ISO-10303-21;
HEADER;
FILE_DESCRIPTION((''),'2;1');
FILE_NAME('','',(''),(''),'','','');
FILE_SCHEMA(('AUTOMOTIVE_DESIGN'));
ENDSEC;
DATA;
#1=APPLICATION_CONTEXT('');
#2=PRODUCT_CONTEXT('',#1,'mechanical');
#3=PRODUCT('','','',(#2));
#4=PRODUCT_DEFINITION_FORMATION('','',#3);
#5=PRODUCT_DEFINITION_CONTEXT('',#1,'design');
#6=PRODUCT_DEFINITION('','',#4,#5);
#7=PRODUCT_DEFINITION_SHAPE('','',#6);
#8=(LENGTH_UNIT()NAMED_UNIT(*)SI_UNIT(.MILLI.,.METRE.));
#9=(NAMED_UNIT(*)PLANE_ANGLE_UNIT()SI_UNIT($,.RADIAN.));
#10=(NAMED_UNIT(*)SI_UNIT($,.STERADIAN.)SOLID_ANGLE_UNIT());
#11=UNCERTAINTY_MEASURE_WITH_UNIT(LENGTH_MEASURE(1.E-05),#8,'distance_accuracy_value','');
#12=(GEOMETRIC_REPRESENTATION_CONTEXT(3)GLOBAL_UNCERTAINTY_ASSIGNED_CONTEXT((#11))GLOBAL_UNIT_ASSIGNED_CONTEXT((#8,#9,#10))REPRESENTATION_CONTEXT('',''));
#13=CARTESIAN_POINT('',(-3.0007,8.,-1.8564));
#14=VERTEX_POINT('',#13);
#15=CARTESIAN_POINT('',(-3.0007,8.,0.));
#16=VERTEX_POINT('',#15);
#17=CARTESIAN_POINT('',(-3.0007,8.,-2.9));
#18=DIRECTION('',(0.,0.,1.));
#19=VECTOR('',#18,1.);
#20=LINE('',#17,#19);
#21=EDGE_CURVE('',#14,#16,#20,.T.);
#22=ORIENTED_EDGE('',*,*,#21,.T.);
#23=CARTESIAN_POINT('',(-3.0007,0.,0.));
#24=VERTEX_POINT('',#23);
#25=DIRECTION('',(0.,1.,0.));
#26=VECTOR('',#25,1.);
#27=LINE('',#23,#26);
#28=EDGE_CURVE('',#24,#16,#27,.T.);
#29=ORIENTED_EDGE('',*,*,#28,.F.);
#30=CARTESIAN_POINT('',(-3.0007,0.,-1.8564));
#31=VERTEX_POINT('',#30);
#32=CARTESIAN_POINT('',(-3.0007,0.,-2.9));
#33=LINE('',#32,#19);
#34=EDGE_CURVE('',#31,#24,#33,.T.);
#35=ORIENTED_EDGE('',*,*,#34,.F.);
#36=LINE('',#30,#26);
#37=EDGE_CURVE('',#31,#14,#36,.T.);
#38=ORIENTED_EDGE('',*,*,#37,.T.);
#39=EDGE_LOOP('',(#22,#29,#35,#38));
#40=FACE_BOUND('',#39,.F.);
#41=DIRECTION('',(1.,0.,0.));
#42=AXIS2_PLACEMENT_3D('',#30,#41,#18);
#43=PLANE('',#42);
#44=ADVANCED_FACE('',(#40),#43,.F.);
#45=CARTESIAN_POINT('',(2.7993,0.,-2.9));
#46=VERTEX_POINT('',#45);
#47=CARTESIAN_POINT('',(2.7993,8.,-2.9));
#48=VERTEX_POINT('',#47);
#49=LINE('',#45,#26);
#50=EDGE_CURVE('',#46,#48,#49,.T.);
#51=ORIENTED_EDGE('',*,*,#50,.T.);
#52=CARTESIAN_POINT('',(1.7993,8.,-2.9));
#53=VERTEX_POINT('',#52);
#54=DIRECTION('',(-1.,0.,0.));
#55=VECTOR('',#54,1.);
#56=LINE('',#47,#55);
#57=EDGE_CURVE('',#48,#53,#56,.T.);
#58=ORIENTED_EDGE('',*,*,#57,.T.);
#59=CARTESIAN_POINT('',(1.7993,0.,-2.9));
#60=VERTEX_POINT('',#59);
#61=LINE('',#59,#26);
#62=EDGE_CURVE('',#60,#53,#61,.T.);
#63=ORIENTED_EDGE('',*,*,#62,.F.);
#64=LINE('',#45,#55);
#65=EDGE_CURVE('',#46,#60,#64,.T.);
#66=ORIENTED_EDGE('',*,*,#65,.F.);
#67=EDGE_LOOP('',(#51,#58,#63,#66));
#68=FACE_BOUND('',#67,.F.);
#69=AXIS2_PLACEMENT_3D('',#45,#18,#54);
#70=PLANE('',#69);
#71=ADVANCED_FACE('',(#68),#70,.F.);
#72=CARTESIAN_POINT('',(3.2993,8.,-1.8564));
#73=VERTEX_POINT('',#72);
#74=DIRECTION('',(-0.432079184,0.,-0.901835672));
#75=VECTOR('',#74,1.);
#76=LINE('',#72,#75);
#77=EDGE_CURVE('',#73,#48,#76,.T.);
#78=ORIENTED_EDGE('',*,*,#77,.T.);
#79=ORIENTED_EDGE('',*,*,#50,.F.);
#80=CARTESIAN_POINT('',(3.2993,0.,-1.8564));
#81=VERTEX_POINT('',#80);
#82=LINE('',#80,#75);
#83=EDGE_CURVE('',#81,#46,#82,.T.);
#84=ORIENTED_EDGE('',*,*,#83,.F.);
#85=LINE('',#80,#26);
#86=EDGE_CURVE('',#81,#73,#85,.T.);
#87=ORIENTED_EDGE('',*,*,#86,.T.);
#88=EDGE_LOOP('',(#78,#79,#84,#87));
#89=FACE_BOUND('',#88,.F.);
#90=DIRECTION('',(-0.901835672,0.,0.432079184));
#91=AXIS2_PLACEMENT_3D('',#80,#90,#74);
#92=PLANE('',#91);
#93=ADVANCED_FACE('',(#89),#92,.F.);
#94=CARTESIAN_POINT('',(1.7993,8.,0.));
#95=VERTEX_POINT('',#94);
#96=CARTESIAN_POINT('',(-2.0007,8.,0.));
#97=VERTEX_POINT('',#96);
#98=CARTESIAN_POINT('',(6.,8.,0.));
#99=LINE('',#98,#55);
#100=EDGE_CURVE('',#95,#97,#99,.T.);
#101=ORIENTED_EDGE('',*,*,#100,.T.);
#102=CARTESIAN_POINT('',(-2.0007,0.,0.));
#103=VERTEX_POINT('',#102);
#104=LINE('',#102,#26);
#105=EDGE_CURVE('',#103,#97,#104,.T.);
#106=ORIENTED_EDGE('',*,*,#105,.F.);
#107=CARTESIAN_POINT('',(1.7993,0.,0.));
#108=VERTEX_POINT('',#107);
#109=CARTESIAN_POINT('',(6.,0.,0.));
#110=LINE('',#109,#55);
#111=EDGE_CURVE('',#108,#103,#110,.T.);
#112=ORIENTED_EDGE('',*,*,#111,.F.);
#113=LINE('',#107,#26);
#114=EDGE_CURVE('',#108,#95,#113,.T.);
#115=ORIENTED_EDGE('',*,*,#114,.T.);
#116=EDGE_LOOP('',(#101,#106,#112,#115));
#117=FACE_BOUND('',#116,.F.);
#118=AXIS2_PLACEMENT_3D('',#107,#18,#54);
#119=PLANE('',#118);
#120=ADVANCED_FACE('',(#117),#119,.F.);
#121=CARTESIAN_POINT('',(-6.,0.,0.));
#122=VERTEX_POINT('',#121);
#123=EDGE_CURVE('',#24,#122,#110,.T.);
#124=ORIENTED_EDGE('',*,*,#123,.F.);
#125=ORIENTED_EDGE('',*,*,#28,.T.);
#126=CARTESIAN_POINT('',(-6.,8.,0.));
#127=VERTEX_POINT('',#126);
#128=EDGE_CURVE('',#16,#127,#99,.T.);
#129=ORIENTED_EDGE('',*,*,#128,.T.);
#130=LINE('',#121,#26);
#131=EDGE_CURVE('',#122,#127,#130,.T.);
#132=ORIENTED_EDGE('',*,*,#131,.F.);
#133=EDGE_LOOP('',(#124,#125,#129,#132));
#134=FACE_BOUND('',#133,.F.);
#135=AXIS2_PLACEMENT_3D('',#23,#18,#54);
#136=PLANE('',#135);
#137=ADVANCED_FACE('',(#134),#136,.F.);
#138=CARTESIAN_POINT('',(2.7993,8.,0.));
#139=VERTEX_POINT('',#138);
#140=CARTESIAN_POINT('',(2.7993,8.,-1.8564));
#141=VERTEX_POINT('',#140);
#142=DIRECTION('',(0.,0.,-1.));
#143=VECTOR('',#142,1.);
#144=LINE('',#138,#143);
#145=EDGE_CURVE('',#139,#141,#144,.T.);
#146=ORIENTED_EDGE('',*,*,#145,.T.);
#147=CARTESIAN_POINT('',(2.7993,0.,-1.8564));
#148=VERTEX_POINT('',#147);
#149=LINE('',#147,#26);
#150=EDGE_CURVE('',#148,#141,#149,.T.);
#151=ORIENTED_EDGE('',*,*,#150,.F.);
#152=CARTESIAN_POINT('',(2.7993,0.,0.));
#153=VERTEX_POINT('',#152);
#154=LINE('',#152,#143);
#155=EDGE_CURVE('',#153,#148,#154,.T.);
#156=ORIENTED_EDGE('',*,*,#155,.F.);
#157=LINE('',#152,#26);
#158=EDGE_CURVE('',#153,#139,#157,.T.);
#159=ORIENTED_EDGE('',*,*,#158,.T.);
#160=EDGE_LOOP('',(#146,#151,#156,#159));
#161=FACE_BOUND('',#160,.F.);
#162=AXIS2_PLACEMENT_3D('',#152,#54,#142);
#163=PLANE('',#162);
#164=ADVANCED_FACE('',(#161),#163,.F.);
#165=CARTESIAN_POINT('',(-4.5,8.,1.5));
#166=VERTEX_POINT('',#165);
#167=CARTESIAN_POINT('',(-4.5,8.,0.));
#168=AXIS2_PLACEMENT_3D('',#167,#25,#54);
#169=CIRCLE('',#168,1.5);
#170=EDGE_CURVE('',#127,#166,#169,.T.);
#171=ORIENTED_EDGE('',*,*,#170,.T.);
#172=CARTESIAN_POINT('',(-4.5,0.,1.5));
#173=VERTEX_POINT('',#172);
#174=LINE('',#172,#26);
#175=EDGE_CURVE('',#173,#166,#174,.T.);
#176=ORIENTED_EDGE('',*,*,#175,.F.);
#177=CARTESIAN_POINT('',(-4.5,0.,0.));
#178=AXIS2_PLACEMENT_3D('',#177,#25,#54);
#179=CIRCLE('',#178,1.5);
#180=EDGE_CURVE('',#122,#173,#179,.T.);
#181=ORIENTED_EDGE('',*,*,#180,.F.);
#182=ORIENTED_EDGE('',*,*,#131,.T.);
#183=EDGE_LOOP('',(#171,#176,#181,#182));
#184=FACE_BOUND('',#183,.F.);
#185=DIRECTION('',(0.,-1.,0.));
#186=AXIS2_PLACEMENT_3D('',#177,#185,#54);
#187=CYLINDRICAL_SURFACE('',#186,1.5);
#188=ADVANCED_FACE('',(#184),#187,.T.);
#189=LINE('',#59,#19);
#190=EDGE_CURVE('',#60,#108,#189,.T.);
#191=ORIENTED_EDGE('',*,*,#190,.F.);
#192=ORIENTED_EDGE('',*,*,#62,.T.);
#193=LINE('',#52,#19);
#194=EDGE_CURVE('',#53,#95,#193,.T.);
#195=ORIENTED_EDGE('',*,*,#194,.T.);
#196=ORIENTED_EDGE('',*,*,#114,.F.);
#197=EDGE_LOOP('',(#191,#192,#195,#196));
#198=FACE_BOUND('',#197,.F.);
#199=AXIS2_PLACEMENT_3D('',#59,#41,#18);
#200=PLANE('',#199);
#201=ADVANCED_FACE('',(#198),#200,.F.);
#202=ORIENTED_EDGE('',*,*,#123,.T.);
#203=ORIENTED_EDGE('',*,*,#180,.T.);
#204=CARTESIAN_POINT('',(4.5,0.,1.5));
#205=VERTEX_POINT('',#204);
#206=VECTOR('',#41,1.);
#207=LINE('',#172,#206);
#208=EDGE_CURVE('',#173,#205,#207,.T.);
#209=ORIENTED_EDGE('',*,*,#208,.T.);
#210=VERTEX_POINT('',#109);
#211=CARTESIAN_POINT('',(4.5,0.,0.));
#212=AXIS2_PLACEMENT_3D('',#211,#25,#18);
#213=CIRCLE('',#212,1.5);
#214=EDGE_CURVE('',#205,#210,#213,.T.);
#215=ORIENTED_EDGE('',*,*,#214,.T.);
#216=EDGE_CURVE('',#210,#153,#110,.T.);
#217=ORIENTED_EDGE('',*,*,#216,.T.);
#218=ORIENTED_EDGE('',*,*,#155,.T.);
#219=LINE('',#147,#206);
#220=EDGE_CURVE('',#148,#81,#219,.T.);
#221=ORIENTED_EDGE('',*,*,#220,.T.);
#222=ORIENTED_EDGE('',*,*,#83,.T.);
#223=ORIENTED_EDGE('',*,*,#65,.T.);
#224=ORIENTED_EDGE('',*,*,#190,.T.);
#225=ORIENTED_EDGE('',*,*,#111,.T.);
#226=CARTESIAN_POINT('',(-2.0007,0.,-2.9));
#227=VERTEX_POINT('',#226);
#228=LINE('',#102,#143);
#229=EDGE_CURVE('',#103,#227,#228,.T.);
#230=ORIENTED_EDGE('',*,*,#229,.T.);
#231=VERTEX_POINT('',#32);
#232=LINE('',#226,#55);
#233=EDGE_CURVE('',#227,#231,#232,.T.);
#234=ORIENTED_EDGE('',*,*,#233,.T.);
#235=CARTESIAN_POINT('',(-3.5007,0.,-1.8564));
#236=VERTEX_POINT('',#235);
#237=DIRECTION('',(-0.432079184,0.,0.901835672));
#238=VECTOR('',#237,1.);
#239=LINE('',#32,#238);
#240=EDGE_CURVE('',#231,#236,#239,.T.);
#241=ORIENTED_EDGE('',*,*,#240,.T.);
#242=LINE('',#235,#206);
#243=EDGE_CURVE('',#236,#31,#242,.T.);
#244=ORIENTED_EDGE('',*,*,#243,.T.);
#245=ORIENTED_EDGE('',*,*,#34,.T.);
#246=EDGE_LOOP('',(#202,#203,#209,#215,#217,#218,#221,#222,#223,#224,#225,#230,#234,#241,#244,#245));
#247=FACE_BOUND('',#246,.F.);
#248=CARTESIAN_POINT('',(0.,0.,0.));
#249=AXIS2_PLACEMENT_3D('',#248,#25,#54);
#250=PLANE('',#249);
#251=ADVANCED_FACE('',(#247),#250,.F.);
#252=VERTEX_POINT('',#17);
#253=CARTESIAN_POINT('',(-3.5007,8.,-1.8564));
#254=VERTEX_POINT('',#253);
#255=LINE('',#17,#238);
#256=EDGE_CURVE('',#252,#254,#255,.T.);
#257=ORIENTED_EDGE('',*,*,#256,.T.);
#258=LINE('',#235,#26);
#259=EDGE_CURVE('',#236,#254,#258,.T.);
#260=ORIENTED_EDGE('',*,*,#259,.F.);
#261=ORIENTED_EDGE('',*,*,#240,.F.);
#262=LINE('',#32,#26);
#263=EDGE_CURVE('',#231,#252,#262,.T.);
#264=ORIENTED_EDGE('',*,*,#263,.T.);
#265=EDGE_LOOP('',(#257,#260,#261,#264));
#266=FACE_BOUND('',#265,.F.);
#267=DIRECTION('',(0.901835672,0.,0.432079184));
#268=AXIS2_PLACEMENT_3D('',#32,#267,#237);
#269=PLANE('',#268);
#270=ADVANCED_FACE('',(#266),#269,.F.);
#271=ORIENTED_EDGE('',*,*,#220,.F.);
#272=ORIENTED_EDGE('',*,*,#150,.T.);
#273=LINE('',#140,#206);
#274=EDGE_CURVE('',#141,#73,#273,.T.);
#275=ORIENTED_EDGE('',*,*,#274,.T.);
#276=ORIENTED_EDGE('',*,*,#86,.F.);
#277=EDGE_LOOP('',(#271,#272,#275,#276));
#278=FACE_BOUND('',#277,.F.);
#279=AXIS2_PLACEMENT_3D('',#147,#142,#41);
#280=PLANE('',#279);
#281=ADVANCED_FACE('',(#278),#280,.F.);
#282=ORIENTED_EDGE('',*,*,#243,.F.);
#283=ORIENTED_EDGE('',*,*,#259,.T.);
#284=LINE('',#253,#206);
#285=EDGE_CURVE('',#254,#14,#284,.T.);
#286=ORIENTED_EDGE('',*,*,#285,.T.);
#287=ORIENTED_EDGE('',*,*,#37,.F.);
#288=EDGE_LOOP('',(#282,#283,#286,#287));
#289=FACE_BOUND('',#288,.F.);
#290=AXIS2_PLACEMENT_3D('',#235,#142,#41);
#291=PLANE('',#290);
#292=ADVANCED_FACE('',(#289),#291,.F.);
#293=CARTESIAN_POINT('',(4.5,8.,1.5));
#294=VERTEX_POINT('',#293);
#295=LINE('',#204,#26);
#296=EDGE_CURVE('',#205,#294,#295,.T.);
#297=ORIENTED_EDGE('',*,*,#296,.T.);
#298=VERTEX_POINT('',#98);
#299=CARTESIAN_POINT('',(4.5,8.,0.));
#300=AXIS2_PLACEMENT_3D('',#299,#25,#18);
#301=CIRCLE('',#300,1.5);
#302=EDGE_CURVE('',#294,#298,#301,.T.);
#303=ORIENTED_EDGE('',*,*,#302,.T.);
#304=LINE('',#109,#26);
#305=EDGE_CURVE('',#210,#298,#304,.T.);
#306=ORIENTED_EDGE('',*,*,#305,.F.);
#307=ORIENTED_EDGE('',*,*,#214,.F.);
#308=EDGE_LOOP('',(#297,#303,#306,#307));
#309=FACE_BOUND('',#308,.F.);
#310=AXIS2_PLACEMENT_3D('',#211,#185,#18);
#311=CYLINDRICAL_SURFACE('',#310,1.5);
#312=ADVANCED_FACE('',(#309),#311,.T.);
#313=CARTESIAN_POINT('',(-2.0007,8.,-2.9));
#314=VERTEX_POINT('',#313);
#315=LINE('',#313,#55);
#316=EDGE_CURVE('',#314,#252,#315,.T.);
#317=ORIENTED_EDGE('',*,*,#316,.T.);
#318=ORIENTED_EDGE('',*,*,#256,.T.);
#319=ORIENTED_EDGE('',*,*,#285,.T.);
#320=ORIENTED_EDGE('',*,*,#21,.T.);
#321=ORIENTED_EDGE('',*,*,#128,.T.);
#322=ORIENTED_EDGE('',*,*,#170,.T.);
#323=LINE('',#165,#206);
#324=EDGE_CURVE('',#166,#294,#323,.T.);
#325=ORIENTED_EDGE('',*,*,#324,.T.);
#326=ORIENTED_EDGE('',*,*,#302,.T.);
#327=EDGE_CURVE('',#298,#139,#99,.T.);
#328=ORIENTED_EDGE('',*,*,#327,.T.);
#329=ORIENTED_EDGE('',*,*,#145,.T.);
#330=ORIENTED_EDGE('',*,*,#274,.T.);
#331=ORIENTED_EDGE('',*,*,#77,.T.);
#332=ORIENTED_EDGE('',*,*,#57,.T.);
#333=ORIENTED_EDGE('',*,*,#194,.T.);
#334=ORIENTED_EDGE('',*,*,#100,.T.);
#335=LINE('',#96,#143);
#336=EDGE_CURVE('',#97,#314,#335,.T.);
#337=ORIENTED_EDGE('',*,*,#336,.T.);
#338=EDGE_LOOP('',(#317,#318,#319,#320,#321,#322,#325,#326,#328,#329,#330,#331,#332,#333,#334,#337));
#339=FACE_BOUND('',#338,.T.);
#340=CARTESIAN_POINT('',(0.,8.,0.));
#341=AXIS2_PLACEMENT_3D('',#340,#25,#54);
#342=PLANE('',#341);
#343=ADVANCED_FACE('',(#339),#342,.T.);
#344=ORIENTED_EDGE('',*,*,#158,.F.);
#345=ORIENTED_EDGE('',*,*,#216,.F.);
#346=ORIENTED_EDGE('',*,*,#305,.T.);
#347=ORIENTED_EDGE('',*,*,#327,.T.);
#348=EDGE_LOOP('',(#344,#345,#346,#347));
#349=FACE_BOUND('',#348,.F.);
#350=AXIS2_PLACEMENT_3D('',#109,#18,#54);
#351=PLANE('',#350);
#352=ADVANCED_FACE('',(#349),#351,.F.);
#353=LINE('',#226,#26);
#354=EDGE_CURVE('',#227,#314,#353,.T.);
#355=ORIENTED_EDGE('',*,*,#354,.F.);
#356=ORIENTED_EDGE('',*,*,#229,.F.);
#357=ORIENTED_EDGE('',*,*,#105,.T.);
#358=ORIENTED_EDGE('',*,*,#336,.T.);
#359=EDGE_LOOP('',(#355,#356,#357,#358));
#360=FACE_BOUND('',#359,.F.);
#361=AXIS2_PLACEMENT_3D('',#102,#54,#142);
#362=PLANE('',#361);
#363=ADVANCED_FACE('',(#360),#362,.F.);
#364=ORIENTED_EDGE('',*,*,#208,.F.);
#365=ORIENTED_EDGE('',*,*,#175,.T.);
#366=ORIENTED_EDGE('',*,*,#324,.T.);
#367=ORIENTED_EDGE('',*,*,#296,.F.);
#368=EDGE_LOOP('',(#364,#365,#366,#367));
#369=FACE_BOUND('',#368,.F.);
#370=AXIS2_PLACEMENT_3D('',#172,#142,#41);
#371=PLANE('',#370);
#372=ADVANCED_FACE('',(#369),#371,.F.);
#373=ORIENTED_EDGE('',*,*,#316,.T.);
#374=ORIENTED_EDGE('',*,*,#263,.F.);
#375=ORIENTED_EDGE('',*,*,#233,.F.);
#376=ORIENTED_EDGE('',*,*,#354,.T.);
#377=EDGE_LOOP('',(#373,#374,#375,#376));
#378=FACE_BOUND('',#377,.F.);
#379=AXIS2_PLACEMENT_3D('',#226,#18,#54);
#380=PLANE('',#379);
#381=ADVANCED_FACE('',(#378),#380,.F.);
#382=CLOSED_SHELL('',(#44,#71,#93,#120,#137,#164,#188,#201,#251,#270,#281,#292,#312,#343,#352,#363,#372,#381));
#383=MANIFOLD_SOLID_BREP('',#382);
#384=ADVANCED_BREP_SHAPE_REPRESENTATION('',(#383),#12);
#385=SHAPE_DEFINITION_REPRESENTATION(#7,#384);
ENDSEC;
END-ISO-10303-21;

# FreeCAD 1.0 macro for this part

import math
import FreeCAD as App
import Part
import Sketcher
from FreeCAD import Vector
Q = App.Units.Quantity

doc = App.newDocument("Part")
params = doc.addObject("Spreadsheet::Sheet", "Params")
for row, (alias, value) in enumerate([
    ("sketch1_radius", "1.5 mm"),
    ("sketch1_width", "1 mm"),
    ("sketch1_width2", "9 mm"),
    ("sketch1_width3", "0.5 mm"),
    ("sketch1_width4", "3.8 mm"),
    ("pad1_length", "8 mm"),
], start=1):
    params.set(f"A{row}", alias)
    params.set(f"B{row}", "=" + value)
    params.setAlias(f"B{row}", alias)

body = doc.addObject("PartDesign::Body", "Body")

sketch1 = doc.addObject("Sketcher::SketchObject", "Sketch")
body.addObject(sketch1)
sketch1.AttachmentSupport = (doc.XZ_Plane, [""])
sketch1.MapMode = "FlatFace"
sketch1.addGeometry(Part.ArcOfCircle(Part.Circle(Vector(4.5, 0, 0), Vector(0, 0, 1), 1.5), math.radians(0), math.radians(90)), False)
sketch1.addGeometry(Part.LineSegment(Vector(6, 0, 0), Vector(2.8, 0, 0)), False)
sketch1.addGeometry(Part.LineSegment(Vector(2.8, 0, 0), Vector(2.8, -1.9, 0)), False)
sketch1.addGeometry(Part.LineSegment(Vector(2.8, -1.9, 0), Vector(3.3, -1.9, 0)), False)
sketch1.addGeometry(Part.LineSegment(Vector(3.3, -1.9, 0), Vector(2.8, -2.9, 0)), False)
sketch1.addGeometry(Part.LineSegment(Vector(2.8, -2.9, 0), Vector(1.8, -2.9, 0)), False)
sketch1.addGeometry(Part.LineSegment(Vector(1.8, -2.9, 0), Vector(1.8, 0, 0)), False)
sketch1.addGeometry(Part.LineSegment(Vector(1.8, 0, 0), Vector(-2, 0, 0)), False)
sketch1.addGeometry(Part.LineSegment(Vector(-2, 0, 0), Vector(-2, -2.9, 0)), False)
sketch1.addGeometry(Part.LineSegment(Vector(-2, -2.9, 0), Vector(-3, -2.9, 0)), False)
sketch1.addGeometry(Part.LineSegment(Vector(-3, -2.9, 0), Vector(-3.5, -1.9, 0)), False)
sketch1.addGeometry(Part.LineSegment(Vector(-3.5, -1.9, 0), Vector(-3, -1.9, 0)), False)
sketch1.addGeometry(Part.LineSegment(Vector(-3, -1.9, 0), Vector(-3, 0, 0)), False)
sketch1.addGeometry(Part.LineSegment(Vector(-3, 0, 0), Vector(-6, 0, 0)), False)
sketch1.addGeometry(Part.ArcOfCircle(Part.Circle(Vector(-4.5, 0, 0), Vector(0, 0, 1), 1.5), math.radians(90), math.radians(180)), False)
sketch1.addGeometry(Part.LineSegment(Vector(-4.5, 1.5, 0), Vector(4.5, 1.5, 0)), False)
sketch1.addConstraint(Sketcher.Constraint("Coincident", 0, 1, 1, 1))
sketch1.addConstraint(Sketcher.Constraint("Coincident", 1, 2, 2, 1))
sketch1.addConstraint(Sketcher.Constraint("Coincident", 2, 2, 3, 1))
sketch1.addConstraint(Sketcher.Constraint("Coincident", 3, 2, 4, 1))
sketch1.addConstraint(Sketcher.Constraint("Coincident", 4, 2, 5, 1))
sketch1.addConstraint(Sketcher.Constraint("Coincident", 5, 2, 6, 1))
sketch1.addConstraint(Sketcher.Constraint("Coincident", 6, 2, 7, 1))
sketch1.addConstraint(Sketcher.Constraint("Coincident", 7, 2, 8, 1))
sketch1.addConstraint(Sketcher.Constraint("Coincident", 8, 2, 9, 1))
sketch1.addConstraint(Sketcher.Constraint("Coincident", 9, 2, 10, 1))
sketch1.addConstraint(Sketcher.Constraint("Coincident", 10, 2, 11, 1))
sketch1.addConstraint(Sketcher.Constraint("Coincident", 11, 2, 12, 1))
sketch1.addConstraint(Sketcher.Constraint("Coincident", 12, 2, 13, 1))
sketch1.addConstraint(Sketcher.Constraint("Coincident", 13, 2, 14, 2))
sketch1.addConstraint(Sketcher.Constraint("Tangent", 14, 1, 15, 1))
sketch1.addConstraint(Sketcher.Constraint("Tangent", 15, 2, 0, 2))
sketch1.addConstraint(Sketcher.Constraint("Horizontal", 1))
sketch1.addConstraint(Sketcher.Constraint("Vertical", 2))
sketch1.addConstraint(Sketcher.Constraint("Horizontal", 3))
sketch1.addConstraint(Sketcher.Constraint("Horizontal", 5))
sketch1.addConstraint(Sketcher.Constraint("Vertical", 6))
sketch1.addConstraint(Sketcher.Constraint("Horizontal", 7))
sketch1.addConstraint(Sketcher.Constraint("Vertical", 8))
sketch1.addConstraint(Sketcher.Constraint("Horizontal", 9))
sketch1.addConstraint(Sketcher.Constraint("Horizontal", 11))
sketch1.addConstraint(Sketcher.Constraint("Vertical", 12))
sketch1.addConstraint(Sketcher.Constraint("Horizontal", 13))
sketch1.addConstraint(Sketcher.Constraint("Horizontal", 15))
sketch1.addConstraint(Sketcher.Constraint("Equal", 0, 14))
sketch1.addConstraint(Sketcher.Constraint("Symmetric", 0, 3, 14, 3, -1, 1))
sketch1.addConstraint(Sketcher.Constraint("PointOnObject", 0, 1, -1))
sketch1.addConstraint(Sketcher.Constraint("PointOnObject", 6, 2, -1))
sketch1.addConstraint(Sketcher.Constraint("PointOnObject", 12, 2, -1))
sketch1.addConstraint(Sketcher.Constraint("Horizontal", 5, 2, 8, 2))
sketch1.addConstraint(Sketcher.Constraint("Horizontal", 3, 2, 10, 2))
sketch1.addConstraint(Sketcher.Constraint("Vertical", 2, 2, 4, 2))
sketch1.addConstraint(Sketcher.Constraint("Vertical", 9, 2, 11, 2))
sketch1.addConstraint(Sketcher.Constraint("Equal", 5, 9))
sketch1.addConstraint(Sketcher.Constraint("Equal", 3, 11))
sketch1.addConstraint(Sketcher.Constraint("Radius", 0, Q("1.5 mm")))
sketch1.addConstraint(Sketcher.Constraint("DistanceX", 5, 2, 5, 1, Q("1 mm")))
sketch1.addConstraint(Sketcher.Constraint("DistanceX", 15, 1, 15, 2, Q("9 mm")))
sketch1.addConstraint(Sketcher.Constraint("DistanceX", 3, 1, 3, 2, Q("0.5 mm")))
sketch1.addConstraint(Sketcher.Constraint("DistanceX", 7, 2, 7, 1, Q("3.8 mm")))
sketch1.addConstraint(Sketcher.Constraint("DistanceY", 6, 1, 6, 2, Q("2.9 mm")))
sketch1.addConstraint(Sketcher.Constraint("Angle", 4, Q("-115.5996 deg")))
sketch1.addConstraint(Sketcher.Constraint("DistanceX", 1, 2, 1, 1, Q("3.2007 mm")))
sketch1.setExpression("Constraints[39]", "Params.sketch1_radius")
sketch1.setExpression("Constraints[40]", "Params.sketch1_width")
sketch1.setExpression("Constraints[41]", "Params.sketch1_width2")
sketch1.setExpression("Constraints[42]", "Params.sketch1_width3")
sketch1.setExpression("Constraints[43]", "Params.sketch1_width4")
pad1 = doc.addObject("PartDesign::Pad", "Pad")
body.addObject(pad1)
pad1.Profile = sketch1
pad1.setExpression("Length", "Params.pad1_length")
pad1.Reversed = True

doc.recompute()
